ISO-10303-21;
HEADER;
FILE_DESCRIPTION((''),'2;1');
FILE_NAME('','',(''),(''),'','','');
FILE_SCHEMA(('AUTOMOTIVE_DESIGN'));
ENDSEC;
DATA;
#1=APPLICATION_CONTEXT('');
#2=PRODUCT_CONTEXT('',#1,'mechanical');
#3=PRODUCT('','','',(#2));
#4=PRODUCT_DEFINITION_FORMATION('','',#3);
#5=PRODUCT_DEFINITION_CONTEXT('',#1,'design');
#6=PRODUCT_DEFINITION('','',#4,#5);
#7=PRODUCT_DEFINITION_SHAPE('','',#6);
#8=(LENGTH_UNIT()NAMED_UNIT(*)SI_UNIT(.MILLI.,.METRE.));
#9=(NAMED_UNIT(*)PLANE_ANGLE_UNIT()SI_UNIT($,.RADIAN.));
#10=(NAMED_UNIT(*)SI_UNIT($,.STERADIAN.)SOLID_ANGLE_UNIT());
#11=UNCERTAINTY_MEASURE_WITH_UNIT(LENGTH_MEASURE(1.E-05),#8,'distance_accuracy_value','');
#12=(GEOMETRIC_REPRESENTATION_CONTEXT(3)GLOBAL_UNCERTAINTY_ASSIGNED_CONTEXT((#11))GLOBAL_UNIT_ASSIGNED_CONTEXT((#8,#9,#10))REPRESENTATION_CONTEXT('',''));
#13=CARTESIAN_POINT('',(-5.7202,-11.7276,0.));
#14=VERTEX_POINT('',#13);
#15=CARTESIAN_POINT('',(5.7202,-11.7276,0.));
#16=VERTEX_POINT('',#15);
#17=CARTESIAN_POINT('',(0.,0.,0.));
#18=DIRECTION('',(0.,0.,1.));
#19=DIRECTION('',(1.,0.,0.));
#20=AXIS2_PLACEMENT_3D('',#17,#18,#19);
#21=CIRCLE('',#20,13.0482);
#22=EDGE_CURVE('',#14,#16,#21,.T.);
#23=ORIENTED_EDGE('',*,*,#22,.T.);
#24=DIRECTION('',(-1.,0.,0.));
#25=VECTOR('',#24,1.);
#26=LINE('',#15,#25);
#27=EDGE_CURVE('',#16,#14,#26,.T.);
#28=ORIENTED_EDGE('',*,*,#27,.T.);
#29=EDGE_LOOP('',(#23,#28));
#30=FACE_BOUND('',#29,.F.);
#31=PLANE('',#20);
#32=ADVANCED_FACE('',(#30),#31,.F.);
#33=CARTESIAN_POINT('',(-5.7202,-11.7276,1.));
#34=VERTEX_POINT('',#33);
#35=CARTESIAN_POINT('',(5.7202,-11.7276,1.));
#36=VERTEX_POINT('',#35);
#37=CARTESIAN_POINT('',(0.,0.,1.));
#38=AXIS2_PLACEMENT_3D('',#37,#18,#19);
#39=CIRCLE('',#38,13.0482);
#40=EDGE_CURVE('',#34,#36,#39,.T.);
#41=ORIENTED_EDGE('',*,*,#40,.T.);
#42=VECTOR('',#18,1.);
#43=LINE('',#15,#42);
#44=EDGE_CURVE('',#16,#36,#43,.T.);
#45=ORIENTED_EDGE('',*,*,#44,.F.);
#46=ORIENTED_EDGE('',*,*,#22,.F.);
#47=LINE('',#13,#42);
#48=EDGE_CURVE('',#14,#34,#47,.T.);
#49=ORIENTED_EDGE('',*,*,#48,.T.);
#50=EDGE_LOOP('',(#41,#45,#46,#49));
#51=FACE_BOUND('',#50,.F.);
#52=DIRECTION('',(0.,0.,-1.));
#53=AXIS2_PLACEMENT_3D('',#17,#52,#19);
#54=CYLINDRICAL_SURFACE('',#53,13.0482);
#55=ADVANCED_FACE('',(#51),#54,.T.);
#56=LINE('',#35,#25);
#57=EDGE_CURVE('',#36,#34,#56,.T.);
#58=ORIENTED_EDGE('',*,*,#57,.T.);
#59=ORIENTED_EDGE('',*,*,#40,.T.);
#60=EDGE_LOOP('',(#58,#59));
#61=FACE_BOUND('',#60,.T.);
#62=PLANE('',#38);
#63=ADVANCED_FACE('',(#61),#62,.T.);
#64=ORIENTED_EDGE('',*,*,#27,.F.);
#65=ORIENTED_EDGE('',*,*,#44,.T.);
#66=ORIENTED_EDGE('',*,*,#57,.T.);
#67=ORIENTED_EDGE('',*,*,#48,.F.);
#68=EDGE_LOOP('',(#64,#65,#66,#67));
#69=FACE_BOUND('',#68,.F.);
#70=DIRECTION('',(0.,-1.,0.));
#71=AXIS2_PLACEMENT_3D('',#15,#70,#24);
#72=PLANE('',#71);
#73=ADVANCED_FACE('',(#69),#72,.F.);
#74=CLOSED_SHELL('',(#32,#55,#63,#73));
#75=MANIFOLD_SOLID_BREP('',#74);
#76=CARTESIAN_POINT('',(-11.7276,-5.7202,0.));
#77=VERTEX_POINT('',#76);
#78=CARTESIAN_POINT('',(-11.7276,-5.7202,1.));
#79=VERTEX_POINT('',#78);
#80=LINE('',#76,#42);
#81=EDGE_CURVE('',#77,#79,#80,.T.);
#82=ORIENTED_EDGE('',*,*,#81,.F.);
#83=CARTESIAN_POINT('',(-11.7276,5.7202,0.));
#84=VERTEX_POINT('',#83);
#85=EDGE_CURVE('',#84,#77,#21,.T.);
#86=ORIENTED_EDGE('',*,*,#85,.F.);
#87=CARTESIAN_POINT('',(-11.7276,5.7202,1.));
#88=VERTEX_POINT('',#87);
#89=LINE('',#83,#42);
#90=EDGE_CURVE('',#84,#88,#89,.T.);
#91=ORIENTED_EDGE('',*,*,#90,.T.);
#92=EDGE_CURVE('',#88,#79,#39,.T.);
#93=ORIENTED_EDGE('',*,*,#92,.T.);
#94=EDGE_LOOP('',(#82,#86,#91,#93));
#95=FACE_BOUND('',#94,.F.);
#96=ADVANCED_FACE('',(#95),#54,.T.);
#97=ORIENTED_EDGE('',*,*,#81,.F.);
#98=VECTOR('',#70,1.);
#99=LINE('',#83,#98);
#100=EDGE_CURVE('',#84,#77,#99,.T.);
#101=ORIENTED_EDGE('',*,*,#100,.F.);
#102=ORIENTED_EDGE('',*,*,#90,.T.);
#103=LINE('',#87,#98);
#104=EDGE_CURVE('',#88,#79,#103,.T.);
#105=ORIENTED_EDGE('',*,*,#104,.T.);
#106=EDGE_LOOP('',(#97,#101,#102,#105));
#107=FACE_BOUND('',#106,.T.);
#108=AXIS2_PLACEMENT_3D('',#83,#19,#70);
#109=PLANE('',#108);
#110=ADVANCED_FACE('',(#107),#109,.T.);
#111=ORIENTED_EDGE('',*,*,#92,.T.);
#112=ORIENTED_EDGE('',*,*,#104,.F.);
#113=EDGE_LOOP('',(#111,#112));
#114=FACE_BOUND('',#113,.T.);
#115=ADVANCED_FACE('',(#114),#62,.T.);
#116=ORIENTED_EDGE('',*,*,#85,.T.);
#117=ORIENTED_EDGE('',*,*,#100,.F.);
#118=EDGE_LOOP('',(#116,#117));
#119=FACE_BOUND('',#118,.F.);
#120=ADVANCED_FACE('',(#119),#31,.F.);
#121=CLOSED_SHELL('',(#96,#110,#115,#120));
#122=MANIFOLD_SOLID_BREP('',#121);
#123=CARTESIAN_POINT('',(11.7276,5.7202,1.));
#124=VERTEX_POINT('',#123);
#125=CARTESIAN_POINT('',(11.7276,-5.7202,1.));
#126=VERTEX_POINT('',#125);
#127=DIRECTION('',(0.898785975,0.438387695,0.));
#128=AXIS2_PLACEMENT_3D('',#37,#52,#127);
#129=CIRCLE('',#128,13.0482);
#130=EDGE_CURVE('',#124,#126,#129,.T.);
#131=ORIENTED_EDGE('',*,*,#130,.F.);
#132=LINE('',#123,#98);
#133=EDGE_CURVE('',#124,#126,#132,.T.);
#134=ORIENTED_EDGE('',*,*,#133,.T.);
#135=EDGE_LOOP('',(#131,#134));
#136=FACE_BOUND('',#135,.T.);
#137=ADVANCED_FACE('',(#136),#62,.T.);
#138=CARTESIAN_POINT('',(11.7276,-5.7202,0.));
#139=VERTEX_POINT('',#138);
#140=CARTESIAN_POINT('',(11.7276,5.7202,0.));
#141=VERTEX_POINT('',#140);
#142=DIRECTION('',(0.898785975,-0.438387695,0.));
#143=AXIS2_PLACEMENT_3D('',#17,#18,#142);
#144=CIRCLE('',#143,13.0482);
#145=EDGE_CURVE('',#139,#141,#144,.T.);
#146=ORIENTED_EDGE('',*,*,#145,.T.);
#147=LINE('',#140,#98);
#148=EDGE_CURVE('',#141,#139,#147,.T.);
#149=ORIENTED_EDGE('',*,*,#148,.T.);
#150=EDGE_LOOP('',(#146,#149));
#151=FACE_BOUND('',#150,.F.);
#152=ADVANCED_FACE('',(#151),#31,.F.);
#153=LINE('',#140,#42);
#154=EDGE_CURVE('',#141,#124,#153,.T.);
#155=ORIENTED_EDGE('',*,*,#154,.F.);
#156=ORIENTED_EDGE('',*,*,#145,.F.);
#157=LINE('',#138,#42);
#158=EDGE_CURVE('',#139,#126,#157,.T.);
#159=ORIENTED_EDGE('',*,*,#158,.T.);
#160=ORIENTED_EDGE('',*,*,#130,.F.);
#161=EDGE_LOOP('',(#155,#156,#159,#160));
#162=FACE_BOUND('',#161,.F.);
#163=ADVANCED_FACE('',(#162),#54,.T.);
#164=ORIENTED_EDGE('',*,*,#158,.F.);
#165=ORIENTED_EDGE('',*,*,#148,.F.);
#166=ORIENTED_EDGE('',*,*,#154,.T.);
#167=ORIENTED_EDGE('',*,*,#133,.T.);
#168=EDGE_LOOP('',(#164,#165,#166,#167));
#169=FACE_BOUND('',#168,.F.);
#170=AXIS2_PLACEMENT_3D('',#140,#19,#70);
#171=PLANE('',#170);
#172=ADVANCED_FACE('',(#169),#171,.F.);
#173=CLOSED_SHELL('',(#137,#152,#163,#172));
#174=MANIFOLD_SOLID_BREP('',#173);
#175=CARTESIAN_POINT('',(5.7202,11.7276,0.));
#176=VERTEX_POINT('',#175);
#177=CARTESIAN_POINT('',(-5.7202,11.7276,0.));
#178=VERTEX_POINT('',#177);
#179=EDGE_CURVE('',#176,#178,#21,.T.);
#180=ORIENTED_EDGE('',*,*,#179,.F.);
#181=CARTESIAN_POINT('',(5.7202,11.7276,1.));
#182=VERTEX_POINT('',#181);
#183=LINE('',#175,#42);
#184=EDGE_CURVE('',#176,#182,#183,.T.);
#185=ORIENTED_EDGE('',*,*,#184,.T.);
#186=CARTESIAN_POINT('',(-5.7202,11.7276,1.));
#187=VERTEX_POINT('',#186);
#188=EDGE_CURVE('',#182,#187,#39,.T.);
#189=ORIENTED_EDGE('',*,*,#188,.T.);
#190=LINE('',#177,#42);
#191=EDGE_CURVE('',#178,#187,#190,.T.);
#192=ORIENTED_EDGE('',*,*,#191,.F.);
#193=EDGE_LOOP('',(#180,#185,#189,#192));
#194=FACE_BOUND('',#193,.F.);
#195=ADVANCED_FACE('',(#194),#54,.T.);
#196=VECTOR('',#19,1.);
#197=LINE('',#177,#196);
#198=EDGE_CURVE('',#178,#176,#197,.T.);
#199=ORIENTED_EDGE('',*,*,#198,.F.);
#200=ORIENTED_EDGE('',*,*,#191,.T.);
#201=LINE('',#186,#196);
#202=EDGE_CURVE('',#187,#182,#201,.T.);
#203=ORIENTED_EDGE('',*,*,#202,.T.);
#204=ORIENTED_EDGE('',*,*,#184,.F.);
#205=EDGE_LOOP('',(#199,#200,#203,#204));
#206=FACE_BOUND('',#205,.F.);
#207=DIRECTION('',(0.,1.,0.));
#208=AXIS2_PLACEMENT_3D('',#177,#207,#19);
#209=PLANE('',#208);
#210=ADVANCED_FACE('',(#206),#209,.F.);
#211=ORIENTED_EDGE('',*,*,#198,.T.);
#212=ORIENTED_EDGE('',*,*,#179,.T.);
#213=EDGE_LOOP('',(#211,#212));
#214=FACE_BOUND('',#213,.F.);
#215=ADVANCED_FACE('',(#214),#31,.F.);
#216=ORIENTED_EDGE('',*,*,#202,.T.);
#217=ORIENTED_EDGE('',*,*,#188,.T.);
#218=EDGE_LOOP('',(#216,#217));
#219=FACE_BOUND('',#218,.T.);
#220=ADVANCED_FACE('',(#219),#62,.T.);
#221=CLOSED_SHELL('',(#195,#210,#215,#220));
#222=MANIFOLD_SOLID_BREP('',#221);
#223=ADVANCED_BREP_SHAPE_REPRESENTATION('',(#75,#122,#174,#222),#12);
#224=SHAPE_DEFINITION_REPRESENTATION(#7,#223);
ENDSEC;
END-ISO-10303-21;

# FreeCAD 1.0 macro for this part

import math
import FreeCAD as App
import Part
import Sketcher

V = App.Vector

doc = App.newDocument("Part")
body = doc.addObject("PartDesign::Body", "Body")
body.AllowCompound = True

# Sketch on XY plane
sketch1 = body.newObject("Sketcher::SketchObject", "Sketch")
sketch1.AttachmentSupport = (doc.getObject("XY_Plane"), [""])
sketch1.MapMode = "FlatFace"
sketch1.addGeometry([
    Part.ArcOfCircle(Part.Circle(V(0, 0, 0), V(0, 0, 1), 13), math.radians(-26), math.radians(26)),  # 0
    Part.LineSegment(V(12, -6, 0), V(12, 6, 0)),  # 1
    Part.LineSegment(V(-6, 12, 0), V(6, 12, 0)),  # 2
    Part.ArcOfCircle(Part.Circle(V(0, 0, 0), V(0, 0, 1), 13), math.radians(64), math.radians(116)),  # 3
    Part.ArcOfCircle(Part.Circle(V(0, 0, 0), V(0, 0, 1), 13), math.radians(-116), math.radians(-64)),  # 4
    Part.LineSegment(V(-6, -12, 0), V(6, -12, 0)),  # 5
    Part.LineSegment(V(-12, -6, 0), V(-12, 6, 0)),  # 6
    Part.ArcOfCircle(Part.Circle(V(0, 0, 0), V(0, 0, 1), 13), math.radians(154), math.radians(206)),  # 7
], False)
sketch1.addConstraint([
    Sketcher.Constraint("Coincident", 0, 1, 1, 1),
    Sketcher.Constraint("Coincident", 1, 2, 0, 2),
    Sketcher.Constraint("Coincident", 2, 1, 3, 2),
    Sketcher.Constraint("Coincident", 3, 1, 2, 2),
    Sketcher.Constraint("Coincident", 4, 1, 5, 1),
    Sketcher.Constraint("Coincident", 5, 2, 4, 2),
    Sketcher.Constraint("Coincident", 6, 1, 7, 2),
    Sketcher.Constraint("Coincident", 7, 1, 6, 2),
    Sketcher.Constraint("Vertical", 1),
    Sketcher.Constraint("Horizontal", 2),
    Sketcher.Constraint("Horizontal", 5),
    Sketcher.Constraint("Vertical", 6),
    Sketcher.Constraint("Coincident", 0, 3, -1, 1),
    Sketcher.Constraint("Coincident", 3, 3, -1, 1),
    Sketcher.Constraint("Coincident", 4, 3, -1, 1),
    Sketcher.Constraint("Coincident", 7, 3, -1, 1),
    Sketcher.Constraint("Equal", 0, 3),
    Sketcher.Constraint("Equal", 3, 4),
    Sketcher.Constraint("Equal", 4, 7),
    Sketcher.Constraint("Horizontal", 0, 1, 6, 1),
    Sketcher.Constraint("Vertical", 2, 1, 4, 1),
    Sketcher.Constraint("Equal", 5, 1),
    Sketcher.Constraint("Radius", 0, 13.0482),
    Sketcher.Constraint("DistanceX", 2, 1, 2, 2, 11.4404),
])
pad1 = body.newObject("PartDesign::Pad", "Pad")
pad1.Profile = sketch1
pad1.Length = 1

doc.recompute()
